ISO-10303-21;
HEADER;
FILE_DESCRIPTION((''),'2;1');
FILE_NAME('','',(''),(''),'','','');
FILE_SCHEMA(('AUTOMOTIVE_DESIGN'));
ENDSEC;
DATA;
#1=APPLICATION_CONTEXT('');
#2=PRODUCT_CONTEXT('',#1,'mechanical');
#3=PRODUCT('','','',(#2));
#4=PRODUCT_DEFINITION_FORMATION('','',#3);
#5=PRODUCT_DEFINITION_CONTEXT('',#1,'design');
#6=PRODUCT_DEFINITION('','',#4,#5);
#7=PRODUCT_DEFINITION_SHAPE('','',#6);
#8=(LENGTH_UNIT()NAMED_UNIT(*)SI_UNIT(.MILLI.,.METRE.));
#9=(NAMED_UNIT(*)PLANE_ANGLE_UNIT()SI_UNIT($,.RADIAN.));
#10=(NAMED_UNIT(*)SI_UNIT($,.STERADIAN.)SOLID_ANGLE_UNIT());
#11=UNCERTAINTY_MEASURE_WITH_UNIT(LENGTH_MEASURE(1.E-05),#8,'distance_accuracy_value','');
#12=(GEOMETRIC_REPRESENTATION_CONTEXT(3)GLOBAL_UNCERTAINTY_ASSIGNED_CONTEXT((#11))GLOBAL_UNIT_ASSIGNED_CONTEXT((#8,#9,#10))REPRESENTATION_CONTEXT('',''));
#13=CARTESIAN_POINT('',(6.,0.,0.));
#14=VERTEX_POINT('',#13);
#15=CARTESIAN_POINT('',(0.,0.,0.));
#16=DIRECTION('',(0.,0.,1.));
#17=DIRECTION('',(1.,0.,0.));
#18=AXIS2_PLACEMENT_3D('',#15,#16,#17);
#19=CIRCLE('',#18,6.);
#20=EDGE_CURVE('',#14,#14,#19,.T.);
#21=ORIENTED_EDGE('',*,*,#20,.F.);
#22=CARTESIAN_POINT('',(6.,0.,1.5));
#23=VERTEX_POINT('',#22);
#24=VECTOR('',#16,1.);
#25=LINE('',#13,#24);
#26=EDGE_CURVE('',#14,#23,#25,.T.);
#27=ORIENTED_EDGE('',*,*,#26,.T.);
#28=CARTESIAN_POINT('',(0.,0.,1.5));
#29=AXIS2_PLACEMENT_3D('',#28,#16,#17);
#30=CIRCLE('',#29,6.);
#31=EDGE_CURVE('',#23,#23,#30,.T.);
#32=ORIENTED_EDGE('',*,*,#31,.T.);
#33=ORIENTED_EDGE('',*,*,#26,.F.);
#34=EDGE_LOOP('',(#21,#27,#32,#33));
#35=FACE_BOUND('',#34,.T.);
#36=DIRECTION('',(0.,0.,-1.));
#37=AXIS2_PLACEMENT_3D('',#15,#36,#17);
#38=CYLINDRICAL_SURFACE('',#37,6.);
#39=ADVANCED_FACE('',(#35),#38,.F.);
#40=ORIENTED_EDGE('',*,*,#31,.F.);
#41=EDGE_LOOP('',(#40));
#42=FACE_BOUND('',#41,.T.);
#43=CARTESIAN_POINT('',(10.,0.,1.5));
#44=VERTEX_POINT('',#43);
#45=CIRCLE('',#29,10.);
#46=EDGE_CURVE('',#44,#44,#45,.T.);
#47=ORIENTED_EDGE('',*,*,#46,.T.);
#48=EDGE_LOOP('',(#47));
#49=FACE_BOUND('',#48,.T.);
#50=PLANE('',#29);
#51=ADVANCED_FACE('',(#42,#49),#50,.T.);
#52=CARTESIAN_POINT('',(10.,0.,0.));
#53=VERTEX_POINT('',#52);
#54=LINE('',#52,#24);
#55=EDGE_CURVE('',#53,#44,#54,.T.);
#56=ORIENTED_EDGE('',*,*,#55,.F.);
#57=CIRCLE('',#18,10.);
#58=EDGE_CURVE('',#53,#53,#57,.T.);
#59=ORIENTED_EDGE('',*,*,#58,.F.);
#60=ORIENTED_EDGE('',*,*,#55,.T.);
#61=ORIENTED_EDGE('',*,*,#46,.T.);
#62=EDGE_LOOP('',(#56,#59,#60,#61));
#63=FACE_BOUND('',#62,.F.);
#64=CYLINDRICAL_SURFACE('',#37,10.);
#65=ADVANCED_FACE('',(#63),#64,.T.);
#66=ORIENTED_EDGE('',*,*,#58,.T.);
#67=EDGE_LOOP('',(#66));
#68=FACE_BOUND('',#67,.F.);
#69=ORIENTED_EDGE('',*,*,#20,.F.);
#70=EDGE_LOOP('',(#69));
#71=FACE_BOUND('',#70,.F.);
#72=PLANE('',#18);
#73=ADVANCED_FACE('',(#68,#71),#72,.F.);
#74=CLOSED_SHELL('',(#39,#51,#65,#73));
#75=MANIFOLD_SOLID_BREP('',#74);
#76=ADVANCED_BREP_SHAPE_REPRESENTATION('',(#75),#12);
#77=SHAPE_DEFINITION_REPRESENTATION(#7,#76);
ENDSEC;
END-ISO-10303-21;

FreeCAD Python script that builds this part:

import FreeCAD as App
import Part
import Sketcher

V = App.Vector
Q = App.Units.Quantity

doc = App.newDocument("Part")
body = doc.addObject("PartDesign::Body", "Body")

# Sketch on XY plane
sketch1 = body.newObject("Sketcher::SketchObject", "Sketch")
sketch1.AttachmentSupport = (doc.getObject("XY_Plane"), [""])
sketch1.MapMode = "FlatFace"
sketch1.addGeometry([
    Part.Circle(V(0, 0, 0), V(0, 0, 1), 10),
    Part.Circle(V(0, 0, 0), V(0, 0, 1), 6),
], False)
sketch1.addConstraint([
    Sketcher.Constraint("Coincident", 0, 3, -1, 1),
    Sketcher.Constraint("Coincident", 1, 3, -1, 1),
    Sketcher.Constraint("Diameter", 0, Q("20 mm")),
    Sketcher.Constraint("Diameter", 1, Q("12 mm")),
])
pad1 = body.newObject("PartDesign::Pad", "Pad")
pad1.Profile = sketch1
pad1.Length = 1.5

doc.recompute()
